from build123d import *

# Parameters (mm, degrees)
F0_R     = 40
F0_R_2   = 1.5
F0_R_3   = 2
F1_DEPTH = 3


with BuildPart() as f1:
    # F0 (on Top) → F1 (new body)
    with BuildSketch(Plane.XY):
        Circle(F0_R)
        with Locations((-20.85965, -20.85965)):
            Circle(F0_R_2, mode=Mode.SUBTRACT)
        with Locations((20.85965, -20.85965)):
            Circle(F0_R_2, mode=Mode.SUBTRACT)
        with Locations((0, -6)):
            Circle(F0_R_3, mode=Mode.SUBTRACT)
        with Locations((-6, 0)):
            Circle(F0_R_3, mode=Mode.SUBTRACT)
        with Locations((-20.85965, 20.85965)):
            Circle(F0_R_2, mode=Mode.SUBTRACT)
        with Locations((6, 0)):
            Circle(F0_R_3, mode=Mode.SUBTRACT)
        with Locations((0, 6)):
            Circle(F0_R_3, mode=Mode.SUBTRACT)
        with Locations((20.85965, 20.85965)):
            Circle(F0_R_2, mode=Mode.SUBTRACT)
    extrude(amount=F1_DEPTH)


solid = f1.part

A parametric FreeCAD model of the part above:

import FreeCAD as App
import Part
import Sketcher
from FreeCAD import Vector

doc = App.newDocument("Part")
body = doc.addObject("PartDesign::Body", "Body")

sketch1 = body.newObject("Sketcher::SketchObject", "Sketch")
sketch1.AttachmentSupport = (doc.getObject("XY_Plane"), [""])
sketch1.MapMode = "FlatFace"
sketch1.addGeometry(Part.Circle(Vector(0, 0, 0), Vector(0, 0, 1), 40), False)
sketch1.addGeometry(Part.Circle(Vector(-20.9, -20.9, 0), Vector(0, 0, 1), 1.5), False)
sketch1.addGeometry(Part.Circle(Vector(20.9, -20.9, 0), Vector(0, 0, 1), 1.5), False)
sketch1.addGeometry(Part.Circle(Vector(0, -6, 0), Vector(0, 0, 1), 2), False)
sketch1.addGeometry(Part.Circle(Vector(-6, 0, 0), Vector(0, 0, 1), 2), False)
sketch1.addGeometry(Part.Circle(Vector(-20.9, 20.9, 0), Vector(0, 0, 1), 1.5), False)
sketch1.addGeometry(Part.Circle(Vector(6, 0, 0), Vector(0, 0, 1), 2), False)
sketch1.addGeometry(Part.Circle(Vector(0, 6, 0), Vector(0, 0, 1), 2), False)
sketch1.addGeometry(Part.Circle(Vector(20.9, 20.9, 0), Vector(0, 0, 1), 1.5), False)
sketch1.addConstraint(Sketcher.Constraint("Coincident", 0, 3, -1, 1))
sketch1.addConstraint(Sketcher.Constraint("Equal", 1, 2))
sketch1.addConstraint(Sketcher.Constraint("Equal", 3, 4))
sketch1.addConstraint(Sketcher.Constraint("Equal", 2, 5))
sketch1.addConstraint(Sketcher.Constraint("Equal", 4, 6))
sketch1.addConstraint(Sketcher.Constraint("Equal", 6, 7))
sketch1.addConstraint(Sketcher.Constraint("Equal", 5, 8))
sketch1.addConstraint(Sketcher.Constraint("Symmetric", 2, 3, 5, 3, -1, 1))
sketch1.addConstraint(Sketcher.Constraint("Symmetric", 4, 3, 6, 3, -1, 1))
sketch1.addConstraint(Sketcher.Constraint("Symmetric", 3, 3, 7, 3, -1, 1))
sketch1.addConstraint(Sketcher.Constraint("Symmetric", 1, 3, 8, 3, -1, 1))
sketch1.addConstraint(Sketcher.Constraint("Symmetric", 1, 3, 2, 3, -2))
sketch1.addConstraint(Sketcher.Constraint("PointOnObject", 3, 3, -2))
sketch1.addConstraint(Sketcher.Constraint("PointOnObject", 4, 3, -1))
sketch1.addConstraint(Sketcher.Constraint("Diameter", 0, 80.0))
sketch1.addConstraint(Sketcher.Constraint("Diameter", 1, 3.0))
sketch1.addConstraint(Sketcher.Constraint("Diameter", 3, 4.0))
sketch1.addConstraint(Sketcher.Constraint("DistanceY", 3, 3, -1, 1, 6.0))
sketch1.addConstraint(Sketcher.Constraint("DistanceX", 4, 3, -1, 1, 6.0))
sketch1.addConstraint(Sketcher.Constraint("DistanceX", 1, 3, 2, 3, 41.7193))
sketch1.addConstraint(Sketcher.Constraint("DistanceY", 1, 3, 5, 3, 41.7193))
pad1 = body.newObject("PartDesign::Pad", "Pad")
pad1.Profile = sketch1
pad1.Length = 3

doc.recompute()
